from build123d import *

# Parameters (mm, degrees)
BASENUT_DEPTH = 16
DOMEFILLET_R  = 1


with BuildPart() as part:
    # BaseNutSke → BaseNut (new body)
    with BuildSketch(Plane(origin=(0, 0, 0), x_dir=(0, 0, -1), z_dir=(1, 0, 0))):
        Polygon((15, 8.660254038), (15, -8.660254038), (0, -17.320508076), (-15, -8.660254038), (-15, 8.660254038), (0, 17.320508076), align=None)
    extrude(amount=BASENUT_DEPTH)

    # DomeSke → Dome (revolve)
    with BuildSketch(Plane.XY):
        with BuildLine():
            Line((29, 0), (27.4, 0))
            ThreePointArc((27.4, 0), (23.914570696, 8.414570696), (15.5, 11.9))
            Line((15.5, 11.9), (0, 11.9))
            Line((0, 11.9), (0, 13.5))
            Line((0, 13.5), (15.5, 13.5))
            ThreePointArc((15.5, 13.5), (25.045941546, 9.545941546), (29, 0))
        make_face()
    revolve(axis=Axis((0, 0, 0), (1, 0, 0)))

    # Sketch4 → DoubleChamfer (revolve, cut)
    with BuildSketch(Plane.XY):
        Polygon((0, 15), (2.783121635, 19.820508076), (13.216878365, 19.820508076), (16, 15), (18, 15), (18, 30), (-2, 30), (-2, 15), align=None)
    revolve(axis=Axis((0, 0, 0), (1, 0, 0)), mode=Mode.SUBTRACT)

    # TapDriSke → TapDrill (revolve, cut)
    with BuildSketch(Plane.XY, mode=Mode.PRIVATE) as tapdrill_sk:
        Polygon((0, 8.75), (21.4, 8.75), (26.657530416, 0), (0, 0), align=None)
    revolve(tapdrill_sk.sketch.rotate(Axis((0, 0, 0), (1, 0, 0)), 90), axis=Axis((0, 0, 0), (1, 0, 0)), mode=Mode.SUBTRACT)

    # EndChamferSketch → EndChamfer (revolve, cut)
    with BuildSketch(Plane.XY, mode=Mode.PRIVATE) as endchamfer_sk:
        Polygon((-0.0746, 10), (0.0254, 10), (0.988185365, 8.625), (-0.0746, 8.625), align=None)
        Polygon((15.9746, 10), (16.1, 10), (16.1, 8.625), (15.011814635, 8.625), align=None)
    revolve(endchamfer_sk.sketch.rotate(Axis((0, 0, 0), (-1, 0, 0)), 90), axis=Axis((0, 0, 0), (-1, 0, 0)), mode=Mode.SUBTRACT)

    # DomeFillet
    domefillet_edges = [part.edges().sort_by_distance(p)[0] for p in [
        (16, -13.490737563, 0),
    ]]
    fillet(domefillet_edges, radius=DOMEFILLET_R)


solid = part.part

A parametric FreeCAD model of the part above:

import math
import FreeCAD as App
import Part
import Sketcher
Q = App.Units.Quantity


def edges_at(feature, points):
    """Names of the edges that pass closest to the given points."""
    edges = feature.Shape.Edges
    near = lambda p: min(range(len(edges)), key=lambda i: edges[i].distToShape(Part.Vertex(*p))[0])
    return sorted({f"Edge{near(p) + 1}" for p in points})


def add_polygon(sketch, points):
    """Adds a closed chain of lines whose ends are joined by coincident constraints."""
    first, n = sketch.GeometryCount, len(points)
    for a, b in zip(points, points[1:] + points[:1]):
        sketch.addGeometry(Part.LineSegment(App.Vector(*a, 0), App.Vector(*b, 0)), False)
    for i in range(n):
        sketch.addConstraint(Sketcher.Constraint("Coincident", first + i, 2, first + (i + 1) % n, 1))

doc = App.newDocument("Part")
body = doc.addObject("PartDesign::Body", "Body")

# Sketch on YZ plane
sketch1 = body.newObject("Sketcher::SketchObject", "Sketch")
sketch1.AttachmentSupport = (doc.getObject("YZ_Plane"), [""])
sketch1.MapMode = "FlatFace"
add_polygon(sketch1, [(-9, -15), (9, -15), (17, 0), (9, 15), (-9, 15), (-17, 0)])  # lines 0-5
sketch1.addConstraint(Sketcher.Constraint("Horizontal", 0))
sketch1.addConstraint(Sketcher.Constraint("Horizontal", 3))
sketch1.addConstraint(Sketcher.Constraint("Symmetric", 0, 2, 3, 2, -1, 1))
sketch1.addConstraint(Sketcher.Constraint("Symmetric", 1, 2, 4, 2, -1, 1))
sketch1.addConstraint(Sketcher.Constraint("PointOnObject", 1, 2, -1))
sketch1.addConstraint(Sketcher.Constraint("Parallel", 2, 5))
sketch1.addConstraint(Sketcher.Constraint("Vertical", 0, 2, 2, 2))
sketch1.addConstraint(Sketcher.Constraint("Angle", 1, Q("60 deg")))
sketch1.addConstraint(Sketcher.Constraint("DistanceY", 0, 2, -1, 1, 15.0))
sketch1.addConstraint(Sketcher.Constraint("DistanceX", 0, 1, 0, 2, 17.320508))
pad1 = body.newObject("PartDesign::Pad", "Pad")
pad1.Profile = sketch1
pad1.Length = 16

# Sketch on XY plane
sketch2 = body.newObject("Sketcher::SketchObject", "Sketch001")
sketch2.AttachmentSupport = (doc.getObject("XY_Plane"), [""])
sketch2.MapMode = "FlatFace"
sketch2.addGeometry(Part.LineSegment(App.Vector(27.4, 0, 0), App.Vector(29, 0, 0)), False)
sketch2.addGeometry(Part.ArcOfCircle(Part.Circle(App.Vector(15.5, 0, 0), App.Vector(0, 0, 1), 13.5), math.radians(0), math.radians(90)), False)
sketch2.addGeometry(Part.LineSegment(App.Vector(15.5, 13.5, 0), App.Vector(0, 13.5, 0)), False)
sketch2.addGeometry(Part.LineSegment(App.Vector(0, 13.5, 0), App.Vector(0, 11.9, 0)), False)
sketch2.addGeometry(Part.LineSegment(App.Vector(0, 11.9, 0), App.Vector(15.5, 11.9, 0)), False)
sketch2.addGeometry(Part.ArcOfCircle(Part.Circle(App.Vector(15.5, 0, 0), App.Vector(0, 0, 1), 11.9), math.radians(0), math.radians(90)), False)
sketch2.addConstraint(Sketcher.Constraint("Coincident", 0, 2, 1, 1))
sketch2.addConstraint(Sketcher.Constraint("Tangent", 1, 2, 2, 1))
sketch2.addConstraint(Sketcher.Constraint("Coincident", 2, 2, 3, 1))
sketch2.addConstraint(Sketcher.Constraint("Coincident", 3, 2, 4, 1))
sketch2.addConstraint(Sketcher.Constraint("Tangent", 4, 2, 5, 2))
sketch2.addConstraint(Sketcher.Constraint("Coincident", 5, 1, 0, 1))
sketch2.addConstraint(Sketcher.Constraint("Horizontal", 0))
sketch2.addConstraint(Sketcher.Constraint("Horizontal", 2))
sketch2.addConstraint(Sketcher.Constraint("Vertical", 3))
sketch2.addConstraint(Sketcher.Constraint("Horizontal", 4))
sketch2.addConstraint(Sketcher.Constraint("Coincident", 5, 3, 1, 3))
sketch2.addConstraint(Sketcher.Constraint("PointOnObject", 1, 3, -1))
sketch2.addConstraint(Sketcher.Constraint("PointOnObject", 0, 2, -1))
sketch2.addConstraint(Sketcher.Constraint("PointOnObject", 2, 2, -2))
sketch2.addConstraint(Sketcher.Constraint("Radius", 1, 13.5))
sketch2.addConstraint(Sketcher.Constraint("Radius", 5, 11.9))
sketch2.addConstraint(Sketcher.Constraint("DistanceX", 2, 2, 2, 1, 15.5))
revolution = body.newObject("PartDesign::Revolution", "Revolution")
revolution.Profile = sketch2
revolution.ReferenceAxis = (sketch2, ["H_Axis"])
revolution.Angle = 360

# Sketch on XY plane
sketch3 = body.newObject("Sketcher::SketchObject", "Sketch002")
sketch3.AttachmentSupport = (doc.getObject("XY_Plane"), [""])
sketch3.MapMode = "FlatFace"
add_polygon(sketch3, [(0, 15), (2.8, 19.8), (13.2, 19.8), (16, 15), (18, 15), (18, 30), (-2, 30), (-2, 15)])  # lines 0-7
sketch3.addConstraint(Sketcher.Constraint("Horizontal", 1))
sketch3.addConstraint(Sketcher.Constraint("Horizontal", 3))
sketch3.addConstraint(Sketcher.Constraint("Vertical", 4))
sketch3.addConstraint(Sketcher.Constraint("Horizontal", 5))
sketch3.addConstraint(Sketcher.Constraint("Vertical", 6))
sketch3.addConstraint(Sketcher.Constraint("Horizontal", 7))
sketch3.addConstraint(Sketcher.Constraint("PointOnObject", 7, 2, -2))
sketch3.addConstraint(Sketcher.Constraint("Horizontal", 3, 2, 6, 2))
sketch3.addConstraint(Sketcher.Constraint("Equal", 3, 7))
sketch3.addConstraint(Sketcher.Constraint("Equal", 0, 2))
sketch3.addConstraint(Sketcher.Constraint("DistanceX", 3, 1, 3, 2, 2.0))
sketch3.addConstraint(Sketcher.Constraint("DistanceX", 5, 2, 5, 1, 20.0))
sketch3.addConstraint(Sketcher.Constraint("DistanceY", 4, 1, 4, 2, 15.0))
sketch3.addConstraint(Sketcher.Constraint("Angle", 0, Q("60 deg")))
sketch3.addConstraint(Sketcher.Constraint("DistanceY", -1, 1, 2, 2, 15.0))
sketch3.addConstraint(Sketcher.Constraint("DistanceX", 1, 1, 1, 2, 10.433757))
groove = body.newObject("PartDesign::Groove", "Groove")
groove.Profile = sketch3
groove.ReferenceAxis = (sketch3, ["H_Axis"])
groove.Angle = 360

# Sketch on XY plane
sketch4 = body.newObject("Sketcher::SketchObject", "Sketch003")
sketch4.AttachmentSupport = (doc.getObject("XY_Plane"), [""])
sketch4.MapMode = "FlatFace"
add_polygon(sketch4, [(21, 9), (0, 9), (0, 0), (27, 0)])  # lines 0-3
sketch4.addConstraint(Sketcher.Constraint("Horizontal", 0))
sketch4.addConstraint(Sketcher.Constraint("Vertical", 1))
sketch4.addConstraint(Sketcher.Constraint("Horizontal", 2))
sketch4.addConstraint(Sketcher.Constraint("Coincident", 1, 2, -1, 1))
sketch4.addConstraint(Sketcher.Constraint("Angle", 3, Q("121 deg")))
sketch4.addConstraint(Sketcher.Constraint("DistanceX", 0, 2, 0, 1, 21.4))
sketch4.addConstraint(Sketcher.Constraint("DistanceY", 1, 2, 1, 1, 8.75))
groove2 = body.newObject("PartDesign::Groove", "Groove001")
groove2.Profile = sketch4
groove2.ReferenceAxis = (sketch4, ["H_Axis"])
groove2.Angle = 360

# Sketch on XY plane
sketch5 = body.newObject("Sketcher::SketchObject", "Sketch004")
sketch5.AttachmentSupport = (doc.getObject("XY_Plane"), [""])
sketch5.MapMode = "FlatFace"
add_polygon(sketch5, [(0.03, 10), (-0.07, 10), (-0.07, 8.62), (0.99, 8.62)])  # lines 0-3
add_polygon(sketch5, [(16.1, 10), (15.97, 10), (15.01, 8.62), (16.1, 8.62)])  # lines 4-7
sketch5.addConstraint(Sketcher.Constraint("Horizontal", 0))
sketch5.addConstraint(Sketcher.Constraint("Vertical", 1))
sketch5.addConstraint(Sketcher.Constraint("Horizontal", 2))
sketch5.addConstraint(Sketcher.Constraint("Horizontal", 4))
sketch5.addConstraint(Sketcher.Constraint("Horizontal", 6))
sketch5.addConstraint(Sketcher.Constraint("Vertical", 7))
sketch5.addConstraint(Sketcher.Constraint("Horizontal", 3, 2, 4, 2))
sketch5.addConstraint(Sketcher.Constraint("Horizontal", 2, 2, 5, 2))
sketch5.addConstraint(Sketcher.Constraint("Equal", 3, 5))
sketch5.addConstraint(Sketcher.Constraint("Angle", 3, Q("125 deg")))
sketch5.addConstraint(Sketcher.Constraint("DistanceX", 0, 2, 0, 1, 0.1))
sketch5.addConstraint(Sketcher.Constraint("DistanceY", -1, 1, 0, 2, 10.0))
sketch5.addConstraint(Sketcher.Constraint("DistanceX", -1, 1, 6, 2, 16.1))
sketch5.addConstraint(Sketcher.Constraint("DistanceY", 1, 2, 1, 1, 1.375))
sketch5.addConstraint(Sketcher.Constraint("DistanceX", 4, 2, 4, 1, 0.1254))
sketch5.addConstraint(Sketcher.Constraint("DistanceX", 0, 2, -1, 1, 0.0746))
groove3 = body.newObject("PartDesign::Groove", "Groove002")
groove3.Profile = sketch5
groove3.ReferenceAxis = (sketch5, ["H_Axis"])
groove3.Angle = 360
doc.recompute()

fillet = body.newObject("PartDesign::Fillet", "Fillet")
fillet.Base = (groove3, edges_at(groove3, [(16, -13.491, 0)]))
fillet.Radius = 1

doc.recompute()
